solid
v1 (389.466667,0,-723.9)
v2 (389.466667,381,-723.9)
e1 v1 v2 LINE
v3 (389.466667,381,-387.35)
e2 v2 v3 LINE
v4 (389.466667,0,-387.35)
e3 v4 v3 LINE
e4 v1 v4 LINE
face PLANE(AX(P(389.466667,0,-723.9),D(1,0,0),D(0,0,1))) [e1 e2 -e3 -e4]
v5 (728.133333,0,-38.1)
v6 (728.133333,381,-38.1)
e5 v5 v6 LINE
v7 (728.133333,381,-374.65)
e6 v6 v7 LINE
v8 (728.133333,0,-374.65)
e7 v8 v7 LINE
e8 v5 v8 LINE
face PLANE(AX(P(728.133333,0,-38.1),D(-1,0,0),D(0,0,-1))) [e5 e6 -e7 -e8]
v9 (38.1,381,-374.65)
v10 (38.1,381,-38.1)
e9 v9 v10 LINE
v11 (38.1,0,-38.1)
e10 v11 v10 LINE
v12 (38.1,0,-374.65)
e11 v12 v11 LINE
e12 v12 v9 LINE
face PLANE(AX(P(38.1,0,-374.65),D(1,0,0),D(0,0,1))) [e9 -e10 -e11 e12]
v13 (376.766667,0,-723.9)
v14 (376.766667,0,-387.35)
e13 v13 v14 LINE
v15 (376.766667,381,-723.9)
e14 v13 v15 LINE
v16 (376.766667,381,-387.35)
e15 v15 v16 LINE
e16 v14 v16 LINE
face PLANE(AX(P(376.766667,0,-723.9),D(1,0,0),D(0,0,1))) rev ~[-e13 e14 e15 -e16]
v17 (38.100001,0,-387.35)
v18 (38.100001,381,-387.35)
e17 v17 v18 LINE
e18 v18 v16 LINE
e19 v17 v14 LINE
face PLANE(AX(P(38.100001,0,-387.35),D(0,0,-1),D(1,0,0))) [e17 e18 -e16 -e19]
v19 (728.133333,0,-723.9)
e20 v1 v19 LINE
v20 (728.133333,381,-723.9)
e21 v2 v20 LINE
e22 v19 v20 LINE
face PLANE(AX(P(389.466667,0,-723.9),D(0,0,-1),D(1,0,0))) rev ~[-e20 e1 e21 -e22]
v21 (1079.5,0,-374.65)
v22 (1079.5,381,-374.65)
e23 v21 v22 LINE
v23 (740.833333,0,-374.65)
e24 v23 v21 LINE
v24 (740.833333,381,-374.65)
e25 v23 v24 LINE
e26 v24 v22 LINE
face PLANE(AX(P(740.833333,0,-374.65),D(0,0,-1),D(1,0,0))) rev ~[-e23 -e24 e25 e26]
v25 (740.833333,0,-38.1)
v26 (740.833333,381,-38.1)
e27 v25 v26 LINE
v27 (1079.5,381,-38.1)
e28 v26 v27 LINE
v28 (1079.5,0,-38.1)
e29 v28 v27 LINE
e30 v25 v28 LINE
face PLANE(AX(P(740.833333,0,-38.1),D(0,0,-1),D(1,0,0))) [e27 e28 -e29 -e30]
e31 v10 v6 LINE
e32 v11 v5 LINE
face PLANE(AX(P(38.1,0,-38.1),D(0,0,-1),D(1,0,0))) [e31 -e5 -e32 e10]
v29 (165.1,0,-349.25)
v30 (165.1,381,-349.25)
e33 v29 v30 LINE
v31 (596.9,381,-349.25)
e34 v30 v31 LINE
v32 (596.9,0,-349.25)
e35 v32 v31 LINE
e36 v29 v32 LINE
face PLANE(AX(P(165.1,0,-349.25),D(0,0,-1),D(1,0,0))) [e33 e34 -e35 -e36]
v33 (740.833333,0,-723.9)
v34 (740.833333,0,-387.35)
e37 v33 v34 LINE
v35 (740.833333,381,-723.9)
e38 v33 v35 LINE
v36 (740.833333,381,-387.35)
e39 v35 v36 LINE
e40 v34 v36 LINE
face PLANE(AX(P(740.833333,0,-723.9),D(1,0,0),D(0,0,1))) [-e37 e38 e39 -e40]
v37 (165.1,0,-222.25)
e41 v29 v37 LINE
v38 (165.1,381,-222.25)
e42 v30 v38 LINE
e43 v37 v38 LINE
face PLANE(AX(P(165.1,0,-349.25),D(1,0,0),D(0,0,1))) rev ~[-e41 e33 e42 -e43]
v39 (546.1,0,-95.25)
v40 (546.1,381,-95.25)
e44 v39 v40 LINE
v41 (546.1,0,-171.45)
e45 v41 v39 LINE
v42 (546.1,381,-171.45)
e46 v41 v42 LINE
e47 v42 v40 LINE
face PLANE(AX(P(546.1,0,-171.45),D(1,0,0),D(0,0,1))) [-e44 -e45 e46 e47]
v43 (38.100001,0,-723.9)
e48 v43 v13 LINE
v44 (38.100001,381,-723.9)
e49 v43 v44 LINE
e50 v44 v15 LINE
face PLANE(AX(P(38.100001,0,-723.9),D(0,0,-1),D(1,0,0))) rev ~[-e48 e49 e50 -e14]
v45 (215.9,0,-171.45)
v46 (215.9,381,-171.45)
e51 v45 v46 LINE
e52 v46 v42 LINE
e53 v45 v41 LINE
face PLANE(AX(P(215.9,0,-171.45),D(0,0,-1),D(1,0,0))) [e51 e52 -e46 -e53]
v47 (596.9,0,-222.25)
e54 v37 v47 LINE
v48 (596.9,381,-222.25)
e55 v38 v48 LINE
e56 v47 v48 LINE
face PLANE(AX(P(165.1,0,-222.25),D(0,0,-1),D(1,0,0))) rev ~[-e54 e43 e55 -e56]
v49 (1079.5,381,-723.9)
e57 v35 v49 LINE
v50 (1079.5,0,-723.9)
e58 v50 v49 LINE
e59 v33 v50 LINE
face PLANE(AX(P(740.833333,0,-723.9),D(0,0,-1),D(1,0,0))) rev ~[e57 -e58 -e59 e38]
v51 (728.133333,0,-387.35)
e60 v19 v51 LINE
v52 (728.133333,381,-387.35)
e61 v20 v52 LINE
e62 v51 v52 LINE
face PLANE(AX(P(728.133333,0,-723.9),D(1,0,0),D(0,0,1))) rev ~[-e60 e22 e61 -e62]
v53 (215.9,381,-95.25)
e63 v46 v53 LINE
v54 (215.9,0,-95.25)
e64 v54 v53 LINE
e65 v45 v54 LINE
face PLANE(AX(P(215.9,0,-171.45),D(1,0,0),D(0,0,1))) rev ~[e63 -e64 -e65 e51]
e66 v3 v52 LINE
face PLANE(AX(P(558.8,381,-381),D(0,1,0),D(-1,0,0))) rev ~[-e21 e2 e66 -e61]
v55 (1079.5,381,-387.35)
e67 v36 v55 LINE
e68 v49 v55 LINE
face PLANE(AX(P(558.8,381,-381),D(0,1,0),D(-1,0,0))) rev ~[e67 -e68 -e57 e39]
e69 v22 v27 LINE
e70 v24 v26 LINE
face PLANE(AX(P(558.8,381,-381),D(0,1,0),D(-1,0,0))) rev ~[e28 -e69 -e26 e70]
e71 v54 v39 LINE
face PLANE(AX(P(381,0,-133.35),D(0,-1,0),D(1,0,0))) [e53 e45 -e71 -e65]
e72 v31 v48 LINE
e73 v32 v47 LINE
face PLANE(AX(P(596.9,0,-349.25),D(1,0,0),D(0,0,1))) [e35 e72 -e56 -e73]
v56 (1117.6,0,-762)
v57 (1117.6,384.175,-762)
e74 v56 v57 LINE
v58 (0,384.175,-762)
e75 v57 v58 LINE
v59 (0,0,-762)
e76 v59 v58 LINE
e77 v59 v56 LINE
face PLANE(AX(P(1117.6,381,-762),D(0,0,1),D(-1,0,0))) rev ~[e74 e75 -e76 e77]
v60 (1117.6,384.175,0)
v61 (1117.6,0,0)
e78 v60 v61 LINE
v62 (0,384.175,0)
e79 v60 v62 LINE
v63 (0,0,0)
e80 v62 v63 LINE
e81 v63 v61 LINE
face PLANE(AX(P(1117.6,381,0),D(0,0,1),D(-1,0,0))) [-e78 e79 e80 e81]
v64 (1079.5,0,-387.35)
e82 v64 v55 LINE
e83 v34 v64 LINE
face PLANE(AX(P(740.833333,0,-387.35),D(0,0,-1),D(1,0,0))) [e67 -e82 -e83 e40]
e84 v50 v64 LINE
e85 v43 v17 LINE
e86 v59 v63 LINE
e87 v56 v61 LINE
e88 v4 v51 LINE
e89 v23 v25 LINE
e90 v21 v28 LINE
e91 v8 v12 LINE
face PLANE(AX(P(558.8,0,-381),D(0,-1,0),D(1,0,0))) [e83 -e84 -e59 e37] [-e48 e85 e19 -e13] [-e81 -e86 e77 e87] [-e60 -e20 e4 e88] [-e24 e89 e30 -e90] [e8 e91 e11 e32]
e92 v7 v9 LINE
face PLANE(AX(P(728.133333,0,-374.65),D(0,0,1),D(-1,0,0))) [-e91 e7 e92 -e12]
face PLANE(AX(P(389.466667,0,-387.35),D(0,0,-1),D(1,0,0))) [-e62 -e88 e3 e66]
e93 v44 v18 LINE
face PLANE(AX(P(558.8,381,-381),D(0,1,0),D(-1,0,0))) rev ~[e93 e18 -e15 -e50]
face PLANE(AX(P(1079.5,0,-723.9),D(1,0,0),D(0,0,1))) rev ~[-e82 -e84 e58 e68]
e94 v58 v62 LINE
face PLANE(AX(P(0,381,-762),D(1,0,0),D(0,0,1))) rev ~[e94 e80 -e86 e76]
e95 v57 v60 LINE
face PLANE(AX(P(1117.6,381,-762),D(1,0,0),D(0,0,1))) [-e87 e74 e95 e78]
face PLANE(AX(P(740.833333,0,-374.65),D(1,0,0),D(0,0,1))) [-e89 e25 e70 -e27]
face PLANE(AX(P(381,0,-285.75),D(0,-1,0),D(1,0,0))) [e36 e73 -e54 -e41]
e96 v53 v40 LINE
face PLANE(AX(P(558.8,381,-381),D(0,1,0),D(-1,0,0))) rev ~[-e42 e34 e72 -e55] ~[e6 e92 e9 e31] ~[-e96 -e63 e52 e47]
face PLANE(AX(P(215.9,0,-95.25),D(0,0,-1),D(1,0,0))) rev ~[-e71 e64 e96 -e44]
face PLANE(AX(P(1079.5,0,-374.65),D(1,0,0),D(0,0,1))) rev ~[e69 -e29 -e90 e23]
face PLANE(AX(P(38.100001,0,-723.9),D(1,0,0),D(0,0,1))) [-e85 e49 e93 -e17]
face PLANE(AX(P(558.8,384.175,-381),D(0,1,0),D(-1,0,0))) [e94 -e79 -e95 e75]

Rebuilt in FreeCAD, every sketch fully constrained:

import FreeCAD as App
import Part
import Sketcher
Q = App.Units.Quantity

doc = App.newDocument("Part")
body = doc.addObject("PartDesign::Body", "Body")

# Sketch on XZ plane
sketch1 = doc.addObject("Sketcher::SketchObject", "Sketch")
body.addObject(sketch1)
sketch1.AttachmentSupport = (doc.XZ_Plane, [""])
sketch1.MapMode = "FlatFace"
sketch1.addGeometry([
    Part.LineSegment(App.Vector(0, 0, 0), App.Vector(0, -762, 0)),  # 0
    Part.LineSegment(App.Vector(0, -762, 0), App.Vector(1118, -762, 0)),  # 1
    Part.LineSegment(App.Vector(1118, -762, 0), App.Vector(1118, 0, 0)),  # 2
    Part.LineSegment(App.Vector(1118, 0, 0), App.Vector(0, 0, 0)),  # 3
    Part.LineSegment(App.Vector(377, -724, 0), App.Vector(38, -724, 0)),  # 4
    Part.LineSegment(App.Vector(38, -724, 0), App.Vector(38, -387, 0)),  # 5
    Part.LineSegment(App.Vector(38, -387, 0), App.Vector(377, -387, 0)),  # 6
    Part.LineSegment(App.Vector(377, -387, 0), App.Vector(377, -724, 0)),  # 7
    Part.LineSegment(App.Vector(728, -724, 0), App.Vector(389, -724, 0)),  # 8
    Part.LineSegment(App.Vector(389, -724, 0), App.Vector(389, -387, 0)),  # 9
    Part.LineSegment(App.Vector(389, -387, 0), App.Vector(728, -387, 0)),  # 10
    Part.LineSegment(App.Vector(728, -387, 0), App.Vector(728, -724, 0)),  # 11
    Part.LineSegment(App.Vector(1080, -724, 0), App.Vector(741, -724, 0)),  # 12
    Part.LineSegment(App.Vector(741, -724, 0), App.Vector(741, -387, 0)),  # 13
    Part.LineSegment(App.Vector(741, -387, 0), App.Vector(1080, -387, 0)),  # 14
    Part.LineSegment(App.Vector(1080, -387, 0), App.Vector(1080, -724, 0)),  # 15
    Part.LineSegment(App.Vector(728, -375, 0), App.Vector(38, -375, 0)),  # 16
    Part.LineSegment(App.Vector(38, -375, 0), App.Vector(38, -38, 0)),  # 17
    Part.LineSegment(App.Vector(38, -38, 0), App.Vector(728, -38, 0)),  # 18
    Part.LineSegment(App.Vector(728, -38, 0), App.Vector(728, -375, 0)),  # 19
    Part.LineSegment(App.Vector(1080, -375, 0), App.Vector(741, -375, 0)),  # 20
    Part.LineSegment(App.Vector(741, -375, 0), App.Vector(741, -38, 0)),  # 21
    Part.LineSegment(App.Vector(741, -38, 0), App.Vector(1080, -38, 0)),  # 22
    Part.LineSegment(App.Vector(1080, -38, 0), App.Vector(1080, -375, 0)),  # 23
], False)
sketch1.addConstraint([
    Sketcher.Constraint("Coincident", 0, 2, 1, 1),
    Sketcher.Constraint("Coincident", 1, 2, 2, 1),
    Sketcher.Constraint("Coincident", 2, 2, 3, 1),
    Sketcher.Constraint("Coincident", 3, 2, 0, 1),
    Sketcher.Constraint("Coincident", 4, 2, 5, 1),
    Sketcher.Constraint("Coincident", 5, 2, 6, 1),
    Sketcher.Constraint("Coincident", 6, 2, 7, 1),
    Sketcher.Constraint("Coincident", 7, 2, 4, 1),
    Sketcher.Constraint("Coincident", 8, 2, 9, 1),
    Sketcher.Constraint("Coincident", 9, 2, 10, 1),
    Sketcher.Constraint("Coincident", 10, 2, 11, 1),
    Sketcher.Constraint("Coincident", 11, 2, 8, 1),
    Sketcher.Constraint("Coincident", 12, 2, 13, 1),
    Sketcher.Constraint("Coincident", 13, 2, 14, 1),
    Sketcher.Constraint("Coincident", 14, 2, 15, 1),
    Sketcher.Constraint("Coincident", 15, 2, 12, 1),
    Sketcher.Constraint("Coincident", 16, 2, 17, 1),
    Sketcher.Constraint("Coincident", 17, 2, 18, 1),
    Sketcher.Constraint("Coincident", 18, 2, 19, 1),
    Sketcher.Constraint("Coincident", 19, 2, 16, 1),
    Sketcher.Constraint("Coincident", 20, 2, 21, 1),
    Sketcher.Constraint("Coincident", 21, 2, 22, 1),
    Sketcher.Constraint("Coincident", 22, 2, 23, 1),
    Sketcher.Constraint("Coincident", 23, 2, 20, 1),
    Sketcher.Constraint("Vertical", 0),
    Sketcher.Constraint("Horizontal", 1),
    Sketcher.Constraint("Vertical", 2),
    Sketcher.Constraint("Horizontal", 3),
    Sketcher.Constraint("Horizontal", 4),
    Sketcher.Constraint("Vertical", 5),
    Sketcher.Constraint("Horizontal", 6),
    Sketcher.Constraint("Vertical", 7),
    Sketcher.Constraint("Horizontal", 8),
    Sketcher.Constraint("Vertical", 9),
    Sketcher.Constraint("Horizontal", 10),
    Sketcher.Constraint("Vertical", 11),
    Sketcher.Constraint("Horizontal", 12),
    Sketcher.Constraint("Vertical", 13),
    Sketcher.Constraint("Horizontal", 14),
    Sketcher.Constraint("Vertical", 15),
    Sketcher.Constraint("Horizontal", 16),
    Sketcher.Constraint("Vertical", 17),
    Sketcher.Constraint("Horizontal", 18),
    Sketcher.Constraint("Vertical", 19),
    Sketcher.Constraint("Horizontal", 20),
    Sketcher.Constraint("Vertical", 21),
    Sketcher.Constraint("Horizontal", 22),
    Sketcher.Constraint("Vertical", 23),
    Sketcher.Constraint("Coincident", 3, 2, -1, 1),
    Sketcher.Constraint("Horizontal", 7, 2, 8, 2),
    Sketcher.Constraint("Horizontal", 6, 2, 9, 2),
    Sketcher.Constraint("Horizontal", 11, 2, 12, 2),
    Sketcher.Constraint("Horizontal", 10, 2, 13, 2),
    Sketcher.Constraint("Horizontal", 19, 2, 20, 2),
    Sketcher.Constraint("Horizontal", 18, 2, 21, 2),
    Sketcher.Constraint("Vertical", 5, 2, 16, 2),
    Sketcher.Constraint("Vertical", 11, 2, 18, 2),
    Sketcher.Constraint("Vertical", 13, 2, 20, 2),
    Sketcher.Constraint("Vertical", 15, 2, 22, 2),
    Sketcher.Constraint("Equal", 6, 8),
    Sketcher.Constraint("Equal", 10, 12),
    Sketcher.Constraint("Equal", 15, 17),
    Sketcher.Constraint("DistanceX", 1, 1, 1, 2, Q("44 in")),
    Sketcher.Constraint("DistanceY", 0, 2, 0, 1, Q("30 in")),
    Sketcher.Constraint("DistanceY", 5, 1, 5, 2, Q("13.25 in")),
    Sketcher.Constraint("DistanceX", -1, 1, 4, 2, Q("1.5 in")),
    Sketcher.Constraint("DistanceY", 4, 2, -1, 1, Q("28.5 in")),
    Sketcher.Constraint("DistanceX", -1, 1, 14, 2, Q("42.5 in")),
    Sketcher.Constraint("DistanceY", 17, 2, -1, 1, Q("1.5 in")),
    Sketcher.Constraint("DistanceX", 7, 2, 8, 2, Q("0.5 in")),
    Sketcher.Constraint("DistanceX", 11, 2, 12, 2, Q("0.5 in")),
])
pad1 = doc.addObject("PartDesign::Pad", "Pad")
body.addObject(pad1)
pad1.Profile = sketch1
pad1.Length = Q("15 in")
pad1.Reversed = True

# Sketch on XZ plane
sketch2 = doc.addObject("Sketcher::SketchObject", "Sketch001")
body.addObject(sketch2)
sketch2.AttachmentSupport = (doc.XZ_Plane, [""])
sketch2.MapMode = "FlatFace"
sketch2.AttachmentOffset = App.Placement(App.Vector(0, 0, -15 * 25.4), App.Rotation())
sketch2.addGeometry([
    Part.LineSegment(App.Vector(1118, 0, 0), App.Vector(1118, -762, 0)),
    Part.LineSegment(App.Vector(1118, -762, 0), App.Vector(0, -762, 0)),
    Part.LineSegment(App.Vector(0, -762, 0), App.Vector(0, 0, 0)),
    Part.LineSegment(App.Vector(0, 0, 0), App.Vector(1118, 0, 0)),
], False)
sketch2.addConstraint([
    Sketcher.Constraint("Coincident", 0, 2, 1, 1),
    Sketcher.Constraint("Coincident", 1, 2, 2, 1),
    Sketcher.Constraint("Coincident", 2, 2, 3, 1),
    Sketcher.Constraint("Coincident", 3, 2, 0, 1),
    Sketcher.Constraint("Vertical", 0),
    Sketcher.Constraint("Horizontal", 1),
    Sketcher.Constraint("Vertical", 2),
    Sketcher.Constraint("Horizontal", 3),
    Sketcher.Constraint("Coincident", 2, 2, -1, 1),
    Sketcher.Constraint("DistanceX", 1, 2, 1, 1, Q("44 in")),
    Sketcher.Constraint("DistanceY", 0, 2, 0, 1, Q("30 in")),
])
pad2 = doc.addObject("PartDesign::Pad", "Pad001")
body.addObject(pad2)
pad2.Profile = sketch2
pad2.Length = Q("0.125 in")
pad2.Reversed = True

# Sketch on XZ plane
sketch3 = doc.addObject("Sketcher::SketchObject", "Sketch002")
body.addObject(sketch3)
sketch3.AttachmentSupport = (doc.XZ_Plane, [""])
sketch3.MapMode = "FlatFace"
sketch3.addGeometry([
    Part.LineSegment(App.Vector(216, -95, 0), App.Vector(216, -171, 0)),  # 0
    Part.LineSegment(App.Vector(216, -171, 0), App.Vector(546, -171, 0)),  # 1
    Part.LineSegment(App.Vector(546, -171, 0), App.Vector(546, -95, 0)),  # 2
    Part.LineSegment(App.Vector(546, -95, 0), App.Vector(216, -95, 0)),  # 3
    Part.LineSegment(App.Vector(165, -222, 0), App.Vector(165, -349, 0)),  # 4
    Part.LineSegment(App.Vector(165, -349, 0), App.Vector(597, -349, 0)),  # 5
    Part.LineSegment(App.Vector(597, -349, 0), App.Vector(597, -222, 0)),  # 6
    Part.LineSegment(App.Vector(597, -222, 0), App.Vector(165, -222, 0)),  # 7
], False)
sketch3.addConstraint([
    Sketcher.Constraint("Coincident", 0, 2, 1, 1),
    Sketcher.Constraint("Coincident", 1, 2, 2, 1),
    Sketcher.Constraint("Coincident", 2, 2, 3, 1),
    Sketcher.Constraint("Coincident", 3, 2, 0, 1),
    Sketcher.Constraint("Coincident", 4, 2, 5, 1),
    Sketcher.Constraint("Coincident", 5, 2, 6, 1),
    Sketcher.Constraint("Coincident", 6, 2, 7, 1),
    Sketcher.Constraint("Coincident", 7, 2, 4, 1),
    Sketcher.Constraint("Vertical", 0),
    Sketcher.Constraint("Horizontal", 1),
    Sketcher.Constraint("Vertical", 2),
    Sketcher.Constraint("Horizontal", 3),
    Sketcher.Constraint("Vertical", 4),
    Sketcher.Constraint("Horizontal", 5),
    Sketcher.Constraint("Vertical", 6),
    Sketcher.Constraint("Horizontal", 7),
    Sketcher.Constraint("DistanceX", 1, 1, 1, 2, Q("13 in")),
    Sketcher.Constraint("DistanceX", 5, 1, 5, 2, Q("17 in")),
    Sketcher.Constraint("DistanceY", 0, 2, 0, 1, Q("3 in")),
    Sketcher.Constraint("DistanceY", 4, 2, 4, 1, Q("5 in")),
    Sketcher.Constraint("DistanceX", 4, 2, 0, 2, Q("2 in")),
    Sketcher.Constraint("DistanceY", 4, 2, 0, 2, Q("7 in")),
    Sketcher.Constraint("DistanceX", -1, 1, 0, 2, Q("8.5 in")),
    Sketcher.Constraint("DistanceY", 0, 2, -1, 1, Q("6.75 in")),
])
pad3 = doc.addObject("PartDesign::Pad", "Pad002")
body.addObject(pad3)
pad3.Profile = sketch3
pad3.Length = Q("15 in")
pad3.Reversed = True

doc.recompute()
